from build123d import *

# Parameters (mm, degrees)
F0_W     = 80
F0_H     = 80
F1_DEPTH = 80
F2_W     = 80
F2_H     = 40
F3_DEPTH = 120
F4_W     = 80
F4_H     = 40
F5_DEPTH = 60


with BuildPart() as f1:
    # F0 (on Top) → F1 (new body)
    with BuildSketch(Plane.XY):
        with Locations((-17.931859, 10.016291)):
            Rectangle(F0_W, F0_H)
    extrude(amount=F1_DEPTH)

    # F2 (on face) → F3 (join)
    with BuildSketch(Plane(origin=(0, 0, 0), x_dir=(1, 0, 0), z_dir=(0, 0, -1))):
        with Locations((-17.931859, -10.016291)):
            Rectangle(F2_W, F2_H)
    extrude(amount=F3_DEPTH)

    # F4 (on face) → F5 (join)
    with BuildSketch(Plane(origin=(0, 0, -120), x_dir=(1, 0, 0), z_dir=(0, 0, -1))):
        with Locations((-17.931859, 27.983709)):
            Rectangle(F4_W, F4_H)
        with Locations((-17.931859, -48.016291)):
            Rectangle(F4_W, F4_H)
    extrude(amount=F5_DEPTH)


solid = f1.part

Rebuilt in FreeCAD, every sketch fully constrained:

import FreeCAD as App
import Part
import Sketcher
Q = App.Units.Quantity


def add_polygon(sketch, points):
    """Adds a closed chain of lines whose ends are joined by coincident constraints."""
    first, n = sketch.GeometryCount, len(points)
    for a, b in zip(points, points[1:] + points[:1]):
        sketch.addGeometry(Part.LineSegment(App.Vector(*a, 0), App.Vector(*b, 0)), False)
    for i in range(n):
        sketch.addConstraint(Sketcher.Constraint("Coincident", first + i, 2, first + (i + 1) % n, 1))

doc = App.newDocument("Part")
body = doc.addObject("PartDesign::Body", "Body")

# Sketch on XY plane
sketch1 = body.newObject("Sketcher::SketchObject", "Sketch")
sketch1.AttachmentSupport = (doc.getObject("XY_Plane"), [""])
sketch1.MapMode = "FlatFace"
add_polygon(sketch1, [(-58, 50), (-58, -30), (22, -30), (22, 50)])  # lines 0-3
sketch1.addConstraint(Sketcher.Constraint("Vertical", 0))
sketch1.addConstraint(Sketcher.Constraint("Horizontal", 1))
sketch1.addConstraint(Sketcher.Constraint("Vertical", 2))
sketch1.addConstraint(Sketcher.Constraint("Horizontal", 3))
sketch1.addConstraint(Sketcher.Constraint("Equal", 3, 0))
sketch1.addConstraint(Sketcher.Constraint("DistanceX", 1, 1, 1, 2, Q("80 mm")))
sketch1.addConstraint(Sketcher.Constraint("DistanceX", 0, 2, -1, 1, Q("57.931859 mm")))
sketch1.addConstraint(Sketcher.Constraint("DistanceY", 0, 2, -1, 1, Q("29.983709 mm")))
pad1 = body.newObject("PartDesign::Pad", "Pad")
pad1.Profile = sketch1
pad1.Length = 80

# Sketch on XY plane
sketch2 = body.newObject("Sketcher::SketchObject", "Sketch001")
sketch2.AttachmentSupport = (doc.getObject("XY_Plane"), [""])
sketch2.MapMode = "FlatFace"
add_polygon(sketch2, [(-58, -10), (-58, 30), (22, 30), (22, -10)])  # lines 0-3
sketch2.addConstraint(Sketcher.Constraint("Vertical", 0))
sketch2.addConstraint(Sketcher.Constraint("Horizontal", 1))
sketch2.addConstraint(Sketcher.Constraint("Vertical", 2))
sketch2.addConstraint(Sketcher.Constraint("Horizontal", 3))
sketch2.addConstraint(Sketcher.Constraint("DistanceX", 1, 1, 1, 2, Q("80 mm")))
sketch2.addConstraint(Sketcher.Constraint("DistanceY", 0, 1, 0, 2, Q("40 mm")))
sketch2.addConstraint(Sketcher.Constraint("DistanceX", 0, 2, -1, 1, Q("57.931859 mm")))
sketch2.addConstraint(Sketcher.Constraint("DistanceY", -1, 1, 0, 2, Q("30.016291 mm")))
pad2 = body.newObject("PartDesign::Pad", "Pad001")
pad2.Profile = sketch2
pad2.Length = 120
pad2.Reversed = True

# Sketch on XY plane
sketch3 = body.newObject("Sketcher::SketchObject", "Sketch002")
sketch3.AttachmentSupport = (doc.getObject("XY_Plane"), [""])
sketch3.MapMode = "FlatFace"
sketch3.AttachmentOffset = App.Placement(App.Vector(0, 0, -120), App.Rotation())
add_polygon(sketch3, [(-58, -48), (-58, -8), (22, -8), (22, -48)])  # lines 0-3
add_polygon(sketch3, [(-58, 28), (-58, 68), (22, 68), (22, 28)])  # lines 4-7
sketch3.addConstraint(Sketcher.Constraint("Vertical", 0))
sketch3.addConstraint(Sketcher.Constraint("Horizontal", 1))
sketch3.addConstraint(Sketcher.Constraint("Vertical", 2))
sketch3.addConstraint(Sketcher.Constraint("Horizontal", 3))
sketch3.addConstraint(Sketcher.Constraint("Vertical", 4))
sketch3.addConstraint(Sketcher.Constraint("Horizontal", 5))
sketch3.addConstraint(Sketcher.Constraint("Vertical", 6))
sketch3.addConstraint(Sketcher.Constraint("Horizontal", 7))
sketch3.addConstraint(Sketcher.Constraint("Vertical", 3, 2, 4, 2))
sketch3.addConstraint(Sketcher.Constraint("Vertical", 2, 2, 5, 2))
sketch3.addConstraint(Sketcher.Constraint("Equal", 2, 4))
sketch3.addConstraint(Sketcher.Constraint("DistanceX", 1, 1, 1, 2, Q("80 mm")))
sketch3.addConstraint(Sketcher.Constraint("DistanceY", 0, 1, 0, 2, Q("40 mm")))
sketch3.addConstraint(Sketcher.Constraint("DistanceY", 0, 2, 4, 2, Q("76 mm")))
sketch3.addConstraint(Sketcher.Constraint("DistanceX", 0, 2, -1, 1, Q("57.931859 mm")))
sketch3.addConstraint(Sketcher.Constraint("DistanceY", 0, 2, -1, 1, Q("7.983709 mm")))
pad3 = body.newObject("PartDesign::Pad", "Pad002")
pad3.Profile = sketch3
pad3.Length = 60
pad3.Reversed = True

doc.recompute()
